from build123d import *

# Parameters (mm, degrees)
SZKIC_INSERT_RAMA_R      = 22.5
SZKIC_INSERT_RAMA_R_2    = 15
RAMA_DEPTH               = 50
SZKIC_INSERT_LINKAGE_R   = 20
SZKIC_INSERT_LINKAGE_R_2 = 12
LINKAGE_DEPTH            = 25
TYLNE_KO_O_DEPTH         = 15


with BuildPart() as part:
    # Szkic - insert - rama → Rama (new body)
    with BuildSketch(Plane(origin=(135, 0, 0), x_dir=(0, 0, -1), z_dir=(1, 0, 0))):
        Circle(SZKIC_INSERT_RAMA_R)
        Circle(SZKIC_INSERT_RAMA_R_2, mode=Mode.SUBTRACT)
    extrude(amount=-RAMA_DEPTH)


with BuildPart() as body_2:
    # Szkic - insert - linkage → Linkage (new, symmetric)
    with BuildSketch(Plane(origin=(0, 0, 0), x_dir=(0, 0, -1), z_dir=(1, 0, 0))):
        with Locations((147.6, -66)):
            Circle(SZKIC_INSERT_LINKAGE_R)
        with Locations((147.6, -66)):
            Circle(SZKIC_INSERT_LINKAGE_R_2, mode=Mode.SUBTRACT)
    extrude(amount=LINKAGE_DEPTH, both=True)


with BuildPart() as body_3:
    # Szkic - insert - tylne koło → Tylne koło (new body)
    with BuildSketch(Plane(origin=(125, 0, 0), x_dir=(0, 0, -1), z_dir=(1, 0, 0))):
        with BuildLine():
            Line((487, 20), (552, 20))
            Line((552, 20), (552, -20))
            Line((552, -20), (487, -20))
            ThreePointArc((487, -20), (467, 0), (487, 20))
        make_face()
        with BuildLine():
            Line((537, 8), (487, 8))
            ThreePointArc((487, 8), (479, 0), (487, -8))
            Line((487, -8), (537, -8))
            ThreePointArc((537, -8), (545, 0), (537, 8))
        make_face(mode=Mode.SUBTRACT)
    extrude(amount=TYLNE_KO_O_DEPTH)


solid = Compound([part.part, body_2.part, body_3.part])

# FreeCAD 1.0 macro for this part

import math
import FreeCAD as App
import Part
import Sketcher
from FreeCAD import Vector

doc = App.newDocument("Part")
params = doc.addObject("Spreadsheet::Sheet", "Params")
for row, (alias, value) in enumerate([
    ("sketch1_diameter", "45 mm"),
    ("sketch1_diameter2", "30 mm"),
    ("pad1_length", "50 mm"),
    ("sketch2_diameter", "40 mm"),
    ("sketch2_diameter2", "24 mm"),
    ("pad2_length", "50 mm"),
    ("sketch3_radius", "20 mm"),
    ("sketch3_radius2", "8 mm"),
    ("sketch3_height", "65 mm"),
    ("sketch3_height2", "50 mm"),
    ("pad3_length", "15 mm"),
], start=1):
    params.set(f"A{row}", alias)
    params.set(f"B{row}", "=" + value)
    params.setAlias(f"B{row}", alias)

body = doc.addObject("PartDesign::Body", "Body")

# Sketch on YZ plane
sketch1 = body.newObject("Sketcher::SketchObject", "Sketch")
sketch1.AttachmentSupport = (doc.getObject("YZ_Plane"), [""])
sketch1.MapMode = "FlatFace"
sketch1.AttachmentOffset = App.Placement(Vector(0, 0, 135), App.Rotation())
sketch1.addGeometry([
    Part.Circle(Vector(0, 0, 0), Vector(0, 0, 1), 22.5),
    Part.Circle(Vector(0, 0, 0), Vector(0, 0, 1), 15),
], False)
sketch1.addConstraint([
    Sketcher.Constraint("Coincident", 0, 3, -1, 1),
    Sketcher.Constraint("Coincident", 1, 3, -1, 1),
    Sketcher.Constraint("Diameter", 0, 45.0),
    Sketcher.Constraint("Diameter", 1, 30.0),
])
sketch1.setExpression("Constraints[2]", "Params.sketch1_diameter")
sketch1.setExpression("Constraints[3]", "Params.sketch1_diameter2")
pad1 = body.newObject("PartDesign::Pad", "Pad")
pad1.Profile = sketch1
pad1.setExpression("Length", "Params.pad1_length")
pad1.Reversed = True
body2 = doc.addObject("PartDesign::Body", "Body001")

# Sketch on YZ plane
sketch2 = body2.newObject("Sketcher::SketchObject", "Sketch001")
sketch2.AttachmentSupport = (doc.getObject("YZ_Plane001"), [""])
sketch2.MapMode = "FlatFace"
sketch2.addGeometry([
    Part.Circle(Vector(-66, -147.6, 0), Vector(0, 0, 1), 20),
    Part.Circle(Vector(-66, -147.6, 0), Vector(0, 0, 1), 12),
], False)
sketch2.addConstraint([
    Sketcher.Constraint("Coincident", 1, 3, 0, 3),
    Sketcher.Constraint("Diameter", 0, 40.0),
    Sketcher.Constraint("Diameter", 1, 24.0),
    Sketcher.Constraint("DistanceX", 0, 3, -1, 1, 66.0),
    Sketcher.Constraint("DistanceY", 0, 3, -1, 1, 147.6),
])
sketch2.setExpression("Constraints[1]", "Params.sketch2_diameter")
sketch2.setExpression("Constraints[2]", "Params.sketch2_diameter2")
pad2 = body2.newObject("PartDesign::Pad", "Pad001")
pad2.Profile = sketch2
pad2.setExpression("Length", "Params.pad2_length")
pad2.Midplane = True
body3 = doc.addObject("PartDesign::Body", "Body002")

# Sketch on YZ plane
sketch3 = body3.newObject("Sketcher::SketchObject", "Sketch002")
sketch3.AttachmentSupport = (doc.getObject("YZ_Plane002"), [""])
sketch3.MapMode = "FlatFace"
sketch3.AttachmentOffset = App.Placement(Vector(0, 0, 125), App.Rotation())
sketch3.addGeometry([
    Part.LineSegment(Vector(20, -552, 0), Vector(20, -487, 0)),  # 0
    Part.ArcOfCircle(Part.Circle(Vector(0, -487, 0), Vector(0, 0, 1), 20), math.radians(0), math.radians(180)),  # 1
    Part.LineSegment(Vector(-20, -487, 0), Vector(-20, -552, 0)),  # 2
    Part.LineSegment(Vector(-20, -552, 0), Vector(20, -552, 0)),  # 3
    Part.ArcOfCircle(Part.Circle(Vector(0, -537, 0), Vector(0, 0, 1), 8), math.radians(180), math.radians(360)),  # 4
    Part.LineSegment(Vector(-8, -537, 0), Vector(-8, -487, 0)),  # 5
    Part.ArcOfCircle(Part.Circle(Vector(0, -487, 0), Vector(0, 0, 1), 8), math.radians(0), math.radians(180)),  # 6
    Part.LineSegment(Vector(8, -487, 0), Vector(8, -537, 0)),  # 7
], False)
sketch3.addConstraint([
    Sketcher.Constraint("Tangent", 0, 2, 1, 1),
    Sketcher.Constraint("Tangent", 1, 2, 2, 1),
    Sketcher.Constraint("Coincident", 2, 2, 3, 1),
    Sketcher.Constraint("Coincident", 3, 2, 0, 1),
    Sketcher.Constraint("Tangent", 4, 1, 5, 1),
    Sketcher.Constraint("Tangent", 5, 2, 6, 2),
    Sketcher.Constraint("Tangent", 6, 1, 7, 1),
    Sketcher.Constraint("Tangent", 7, 2, 4, 2),
    Sketcher.Constraint("Vertical", 0),
    Sketcher.Constraint("Vertical", 2),
    Sketcher.Constraint("Horizontal", 3),
    Sketcher.Constraint("Vertical", 5),
    Sketcher.Constraint("Vertical", 7),
    Sketcher.Constraint("Coincident", 6, 3, 1, 3),
    Sketcher.Constraint("PointOnObject", 1, 3, -2),
    Sketcher.Constraint("Radius", 1, 20.0),
    Sketcher.Constraint("Radius", 4, 8.0),
    Sketcher.Constraint("DistanceY", 0, 1, 0, 2, 65.0),
    Sketcher.Constraint("DistanceY", 5, 1, 5, 2, 50.0),
    Sketcher.Constraint("DistanceY", 1, 3, -1, 1, 487.0),
])
sketch3.setExpression("Constraints[15]", "Params.sketch3_radius")
sketch3.setExpression("Constraints[16]", "Params.sketch3_radius2")
sketch3.setExpression("Constraints[17]", "Params.sketch3_height")
sketch3.setExpression("Constraints[18]", "Params.sketch3_height2")
pad3 = body3.newObject("PartDesign::Pad", "Pad002")
pad3.Profile = sketch3
pad3.setExpression("Length", "Params.pad3_length")

doc.recompute()
